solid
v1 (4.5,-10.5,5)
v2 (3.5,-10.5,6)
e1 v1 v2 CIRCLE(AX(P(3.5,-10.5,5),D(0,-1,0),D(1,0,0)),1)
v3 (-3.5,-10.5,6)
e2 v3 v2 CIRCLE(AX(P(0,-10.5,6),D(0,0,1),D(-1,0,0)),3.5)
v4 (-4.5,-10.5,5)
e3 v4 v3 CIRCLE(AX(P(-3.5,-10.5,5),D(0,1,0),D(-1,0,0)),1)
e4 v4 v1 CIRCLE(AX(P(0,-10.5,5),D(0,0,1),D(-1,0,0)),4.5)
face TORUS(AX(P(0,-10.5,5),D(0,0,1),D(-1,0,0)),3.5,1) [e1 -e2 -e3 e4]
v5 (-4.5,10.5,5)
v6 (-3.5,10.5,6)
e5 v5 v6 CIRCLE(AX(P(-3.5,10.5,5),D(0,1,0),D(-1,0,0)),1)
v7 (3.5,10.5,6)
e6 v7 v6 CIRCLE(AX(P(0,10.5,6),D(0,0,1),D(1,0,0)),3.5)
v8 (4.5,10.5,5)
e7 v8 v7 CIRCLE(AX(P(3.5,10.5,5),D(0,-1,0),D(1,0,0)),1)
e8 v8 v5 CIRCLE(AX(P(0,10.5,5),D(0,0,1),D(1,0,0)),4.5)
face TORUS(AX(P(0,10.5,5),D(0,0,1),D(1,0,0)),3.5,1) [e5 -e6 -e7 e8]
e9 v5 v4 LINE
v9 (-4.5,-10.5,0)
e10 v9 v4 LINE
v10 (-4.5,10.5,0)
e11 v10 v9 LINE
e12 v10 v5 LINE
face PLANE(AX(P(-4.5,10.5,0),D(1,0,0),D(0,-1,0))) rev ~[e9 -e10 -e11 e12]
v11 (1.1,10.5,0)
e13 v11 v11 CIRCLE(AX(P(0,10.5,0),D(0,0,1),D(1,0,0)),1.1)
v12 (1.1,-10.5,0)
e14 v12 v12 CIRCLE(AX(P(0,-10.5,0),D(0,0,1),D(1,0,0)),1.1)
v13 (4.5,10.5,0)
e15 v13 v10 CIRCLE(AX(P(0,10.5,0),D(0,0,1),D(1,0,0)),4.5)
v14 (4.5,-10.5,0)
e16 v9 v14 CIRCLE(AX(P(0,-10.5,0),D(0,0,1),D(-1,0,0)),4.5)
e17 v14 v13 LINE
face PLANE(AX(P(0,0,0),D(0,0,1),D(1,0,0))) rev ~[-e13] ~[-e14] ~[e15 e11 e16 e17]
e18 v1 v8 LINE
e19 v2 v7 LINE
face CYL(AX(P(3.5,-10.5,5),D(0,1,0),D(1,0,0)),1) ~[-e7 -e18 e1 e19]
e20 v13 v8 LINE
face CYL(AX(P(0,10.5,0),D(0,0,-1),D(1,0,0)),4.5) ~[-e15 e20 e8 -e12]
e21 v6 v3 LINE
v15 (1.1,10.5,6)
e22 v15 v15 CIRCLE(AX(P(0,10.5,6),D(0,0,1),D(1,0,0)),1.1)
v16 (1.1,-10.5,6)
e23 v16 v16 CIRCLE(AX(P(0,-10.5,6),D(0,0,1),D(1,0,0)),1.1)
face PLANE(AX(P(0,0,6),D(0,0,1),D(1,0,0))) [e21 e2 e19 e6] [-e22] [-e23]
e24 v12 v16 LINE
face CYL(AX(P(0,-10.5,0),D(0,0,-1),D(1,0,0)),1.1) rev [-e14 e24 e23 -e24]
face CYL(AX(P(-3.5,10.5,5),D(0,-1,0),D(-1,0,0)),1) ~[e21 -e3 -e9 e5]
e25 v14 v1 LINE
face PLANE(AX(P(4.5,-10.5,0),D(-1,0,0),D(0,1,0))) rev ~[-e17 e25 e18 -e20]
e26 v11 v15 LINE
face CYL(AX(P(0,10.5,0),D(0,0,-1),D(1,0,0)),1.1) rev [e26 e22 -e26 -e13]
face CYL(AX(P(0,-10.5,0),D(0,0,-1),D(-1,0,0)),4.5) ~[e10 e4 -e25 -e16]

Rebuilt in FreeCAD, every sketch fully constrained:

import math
import FreeCAD as App
import Part
import Sketcher
from FreeCAD import Vector


def edges_at(feature, points):
    """Names of the edges that pass closest to the given points."""
    edges = feature.Shape.Edges
    near = lambda p: min(range(len(edges)), key=lambda i: edges[i].distToShape(Part.Vertex(*p))[0])
    return sorted({f"Edge{near(p) + 1}" for p in points})

doc = App.newDocument("Part")
params = doc.addObject("Spreadsheet::Sheet", "Params")
for row, (alias, value) in enumerate([
    ("sketch1_diameter", "2.2 mm"),
    ("sketch1_radius", "4.5 mm"),
    ("sketch1_height", "21 mm"),
    ("pad1_length", "6 mm"),
    ("fillet_radius", "1 mm"),
], start=1):
    params.set(f"A{row}", alias)
    params.set(f"B{row}", "=" + value)
    params.setAlias(f"B{row}", alias)

body = doc.addObject("PartDesign::Body", "Body")

# Sketch on XY plane
sketch1 = body.newObject("Sketcher::SketchObject", "Sketch")
sketch1.AttachmentSupport = (doc.getObject("XY_Plane"), [""])
sketch1.MapMode = "FlatFace"
sketch1.addGeometry(Part.ArcOfCircle(Part.Circle(Vector(0, 10.5, 0), Vector(0, 0, 1), 4.5), math.radians(0), math.radians(180)), False)
sketch1.addGeometry(Part.LineSegment(Vector(-4.5, 10.5, 0), Vector(-4.5, -10.5, 0)), False)
sketch1.addGeometry(Part.ArcOfCircle(Part.Circle(Vector(0, -10.5, 0), Vector(0, 0, 1), 4.5), math.radians(180), math.radians(360)), False)
sketch1.addGeometry(Part.LineSegment(Vector(4.5, -10.5, 0), Vector(4.5, 10.5, 0)), False)
sketch1.addGeometry(Part.Circle(Vector(0, -10.5, 0), Vector(0, 0, 1), 1.1), False)
sketch1.addGeometry(Part.Circle(Vector(0, 10.5, 0), Vector(0, 0, 1), 1.1), False)
sketch1.addConstraint(Sketcher.Constraint("Tangent", 0, 2, 1, 1))
sketch1.addConstraint(Sketcher.Constraint("Tangent", 1, 2, 2, 1))
sketch1.addConstraint(Sketcher.Constraint("Tangent", 2, 2, 3, 1))
sketch1.addConstraint(Sketcher.Constraint("Tangent", 3, 2, 0, 1))
sketch1.addConstraint(Sketcher.Constraint("Vertical", 1))
sketch1.addConstraint(Sketcher.Constraint("Vertical", 3))
sketch1.addConstraint(Sketcher.Constraint("Coincident", 4, 3, 2, 3))
sketch1.addConstraint(Sketcher.Constraint("Coincident", 5, 3, 0, 3))
sketch1.addConstraint(Sketcher.Constraint("Equal", 4, 5))
sketch1.addConstraint(Sketcher.Constraint("Symmetric", 0, 3, 2, 3, -1, 1))
sketch1.addConstraint(Sketcher.Constraint("Diameter", 4, 2.2))
sketch1.addConstraint(Sketcher.Constraint("Radius", 0, 4.5))
sketch1.addConstraint(Sketcher.Constraint("DistanceY", 1, 2, 1, 1, 21.0))
sketch1.setExpression("Constraints[10]", "Params.sketch1_diameter")
sketch1.setExpression("Constraints[11]", "Params.sketch1_radius")
sketch1.setExpression("Constraints[12]", "Params.sketch1_height")
pad1 = body.newObject("PartDesign::Pad", "Pad")
pad1.Profile = sketch1
pad1.setExpression("Length", "Params.pad1_length")
doc.recompute()

fillet = body.newObject("PartDesign::Fillet", "Fillet")
fillet.Base = (pad1, edges_at(pad1, [(-4.5, 0, 6)]))
fillet.setExpression("Radius", "Params.fillet_radius")

doc.recompute()
